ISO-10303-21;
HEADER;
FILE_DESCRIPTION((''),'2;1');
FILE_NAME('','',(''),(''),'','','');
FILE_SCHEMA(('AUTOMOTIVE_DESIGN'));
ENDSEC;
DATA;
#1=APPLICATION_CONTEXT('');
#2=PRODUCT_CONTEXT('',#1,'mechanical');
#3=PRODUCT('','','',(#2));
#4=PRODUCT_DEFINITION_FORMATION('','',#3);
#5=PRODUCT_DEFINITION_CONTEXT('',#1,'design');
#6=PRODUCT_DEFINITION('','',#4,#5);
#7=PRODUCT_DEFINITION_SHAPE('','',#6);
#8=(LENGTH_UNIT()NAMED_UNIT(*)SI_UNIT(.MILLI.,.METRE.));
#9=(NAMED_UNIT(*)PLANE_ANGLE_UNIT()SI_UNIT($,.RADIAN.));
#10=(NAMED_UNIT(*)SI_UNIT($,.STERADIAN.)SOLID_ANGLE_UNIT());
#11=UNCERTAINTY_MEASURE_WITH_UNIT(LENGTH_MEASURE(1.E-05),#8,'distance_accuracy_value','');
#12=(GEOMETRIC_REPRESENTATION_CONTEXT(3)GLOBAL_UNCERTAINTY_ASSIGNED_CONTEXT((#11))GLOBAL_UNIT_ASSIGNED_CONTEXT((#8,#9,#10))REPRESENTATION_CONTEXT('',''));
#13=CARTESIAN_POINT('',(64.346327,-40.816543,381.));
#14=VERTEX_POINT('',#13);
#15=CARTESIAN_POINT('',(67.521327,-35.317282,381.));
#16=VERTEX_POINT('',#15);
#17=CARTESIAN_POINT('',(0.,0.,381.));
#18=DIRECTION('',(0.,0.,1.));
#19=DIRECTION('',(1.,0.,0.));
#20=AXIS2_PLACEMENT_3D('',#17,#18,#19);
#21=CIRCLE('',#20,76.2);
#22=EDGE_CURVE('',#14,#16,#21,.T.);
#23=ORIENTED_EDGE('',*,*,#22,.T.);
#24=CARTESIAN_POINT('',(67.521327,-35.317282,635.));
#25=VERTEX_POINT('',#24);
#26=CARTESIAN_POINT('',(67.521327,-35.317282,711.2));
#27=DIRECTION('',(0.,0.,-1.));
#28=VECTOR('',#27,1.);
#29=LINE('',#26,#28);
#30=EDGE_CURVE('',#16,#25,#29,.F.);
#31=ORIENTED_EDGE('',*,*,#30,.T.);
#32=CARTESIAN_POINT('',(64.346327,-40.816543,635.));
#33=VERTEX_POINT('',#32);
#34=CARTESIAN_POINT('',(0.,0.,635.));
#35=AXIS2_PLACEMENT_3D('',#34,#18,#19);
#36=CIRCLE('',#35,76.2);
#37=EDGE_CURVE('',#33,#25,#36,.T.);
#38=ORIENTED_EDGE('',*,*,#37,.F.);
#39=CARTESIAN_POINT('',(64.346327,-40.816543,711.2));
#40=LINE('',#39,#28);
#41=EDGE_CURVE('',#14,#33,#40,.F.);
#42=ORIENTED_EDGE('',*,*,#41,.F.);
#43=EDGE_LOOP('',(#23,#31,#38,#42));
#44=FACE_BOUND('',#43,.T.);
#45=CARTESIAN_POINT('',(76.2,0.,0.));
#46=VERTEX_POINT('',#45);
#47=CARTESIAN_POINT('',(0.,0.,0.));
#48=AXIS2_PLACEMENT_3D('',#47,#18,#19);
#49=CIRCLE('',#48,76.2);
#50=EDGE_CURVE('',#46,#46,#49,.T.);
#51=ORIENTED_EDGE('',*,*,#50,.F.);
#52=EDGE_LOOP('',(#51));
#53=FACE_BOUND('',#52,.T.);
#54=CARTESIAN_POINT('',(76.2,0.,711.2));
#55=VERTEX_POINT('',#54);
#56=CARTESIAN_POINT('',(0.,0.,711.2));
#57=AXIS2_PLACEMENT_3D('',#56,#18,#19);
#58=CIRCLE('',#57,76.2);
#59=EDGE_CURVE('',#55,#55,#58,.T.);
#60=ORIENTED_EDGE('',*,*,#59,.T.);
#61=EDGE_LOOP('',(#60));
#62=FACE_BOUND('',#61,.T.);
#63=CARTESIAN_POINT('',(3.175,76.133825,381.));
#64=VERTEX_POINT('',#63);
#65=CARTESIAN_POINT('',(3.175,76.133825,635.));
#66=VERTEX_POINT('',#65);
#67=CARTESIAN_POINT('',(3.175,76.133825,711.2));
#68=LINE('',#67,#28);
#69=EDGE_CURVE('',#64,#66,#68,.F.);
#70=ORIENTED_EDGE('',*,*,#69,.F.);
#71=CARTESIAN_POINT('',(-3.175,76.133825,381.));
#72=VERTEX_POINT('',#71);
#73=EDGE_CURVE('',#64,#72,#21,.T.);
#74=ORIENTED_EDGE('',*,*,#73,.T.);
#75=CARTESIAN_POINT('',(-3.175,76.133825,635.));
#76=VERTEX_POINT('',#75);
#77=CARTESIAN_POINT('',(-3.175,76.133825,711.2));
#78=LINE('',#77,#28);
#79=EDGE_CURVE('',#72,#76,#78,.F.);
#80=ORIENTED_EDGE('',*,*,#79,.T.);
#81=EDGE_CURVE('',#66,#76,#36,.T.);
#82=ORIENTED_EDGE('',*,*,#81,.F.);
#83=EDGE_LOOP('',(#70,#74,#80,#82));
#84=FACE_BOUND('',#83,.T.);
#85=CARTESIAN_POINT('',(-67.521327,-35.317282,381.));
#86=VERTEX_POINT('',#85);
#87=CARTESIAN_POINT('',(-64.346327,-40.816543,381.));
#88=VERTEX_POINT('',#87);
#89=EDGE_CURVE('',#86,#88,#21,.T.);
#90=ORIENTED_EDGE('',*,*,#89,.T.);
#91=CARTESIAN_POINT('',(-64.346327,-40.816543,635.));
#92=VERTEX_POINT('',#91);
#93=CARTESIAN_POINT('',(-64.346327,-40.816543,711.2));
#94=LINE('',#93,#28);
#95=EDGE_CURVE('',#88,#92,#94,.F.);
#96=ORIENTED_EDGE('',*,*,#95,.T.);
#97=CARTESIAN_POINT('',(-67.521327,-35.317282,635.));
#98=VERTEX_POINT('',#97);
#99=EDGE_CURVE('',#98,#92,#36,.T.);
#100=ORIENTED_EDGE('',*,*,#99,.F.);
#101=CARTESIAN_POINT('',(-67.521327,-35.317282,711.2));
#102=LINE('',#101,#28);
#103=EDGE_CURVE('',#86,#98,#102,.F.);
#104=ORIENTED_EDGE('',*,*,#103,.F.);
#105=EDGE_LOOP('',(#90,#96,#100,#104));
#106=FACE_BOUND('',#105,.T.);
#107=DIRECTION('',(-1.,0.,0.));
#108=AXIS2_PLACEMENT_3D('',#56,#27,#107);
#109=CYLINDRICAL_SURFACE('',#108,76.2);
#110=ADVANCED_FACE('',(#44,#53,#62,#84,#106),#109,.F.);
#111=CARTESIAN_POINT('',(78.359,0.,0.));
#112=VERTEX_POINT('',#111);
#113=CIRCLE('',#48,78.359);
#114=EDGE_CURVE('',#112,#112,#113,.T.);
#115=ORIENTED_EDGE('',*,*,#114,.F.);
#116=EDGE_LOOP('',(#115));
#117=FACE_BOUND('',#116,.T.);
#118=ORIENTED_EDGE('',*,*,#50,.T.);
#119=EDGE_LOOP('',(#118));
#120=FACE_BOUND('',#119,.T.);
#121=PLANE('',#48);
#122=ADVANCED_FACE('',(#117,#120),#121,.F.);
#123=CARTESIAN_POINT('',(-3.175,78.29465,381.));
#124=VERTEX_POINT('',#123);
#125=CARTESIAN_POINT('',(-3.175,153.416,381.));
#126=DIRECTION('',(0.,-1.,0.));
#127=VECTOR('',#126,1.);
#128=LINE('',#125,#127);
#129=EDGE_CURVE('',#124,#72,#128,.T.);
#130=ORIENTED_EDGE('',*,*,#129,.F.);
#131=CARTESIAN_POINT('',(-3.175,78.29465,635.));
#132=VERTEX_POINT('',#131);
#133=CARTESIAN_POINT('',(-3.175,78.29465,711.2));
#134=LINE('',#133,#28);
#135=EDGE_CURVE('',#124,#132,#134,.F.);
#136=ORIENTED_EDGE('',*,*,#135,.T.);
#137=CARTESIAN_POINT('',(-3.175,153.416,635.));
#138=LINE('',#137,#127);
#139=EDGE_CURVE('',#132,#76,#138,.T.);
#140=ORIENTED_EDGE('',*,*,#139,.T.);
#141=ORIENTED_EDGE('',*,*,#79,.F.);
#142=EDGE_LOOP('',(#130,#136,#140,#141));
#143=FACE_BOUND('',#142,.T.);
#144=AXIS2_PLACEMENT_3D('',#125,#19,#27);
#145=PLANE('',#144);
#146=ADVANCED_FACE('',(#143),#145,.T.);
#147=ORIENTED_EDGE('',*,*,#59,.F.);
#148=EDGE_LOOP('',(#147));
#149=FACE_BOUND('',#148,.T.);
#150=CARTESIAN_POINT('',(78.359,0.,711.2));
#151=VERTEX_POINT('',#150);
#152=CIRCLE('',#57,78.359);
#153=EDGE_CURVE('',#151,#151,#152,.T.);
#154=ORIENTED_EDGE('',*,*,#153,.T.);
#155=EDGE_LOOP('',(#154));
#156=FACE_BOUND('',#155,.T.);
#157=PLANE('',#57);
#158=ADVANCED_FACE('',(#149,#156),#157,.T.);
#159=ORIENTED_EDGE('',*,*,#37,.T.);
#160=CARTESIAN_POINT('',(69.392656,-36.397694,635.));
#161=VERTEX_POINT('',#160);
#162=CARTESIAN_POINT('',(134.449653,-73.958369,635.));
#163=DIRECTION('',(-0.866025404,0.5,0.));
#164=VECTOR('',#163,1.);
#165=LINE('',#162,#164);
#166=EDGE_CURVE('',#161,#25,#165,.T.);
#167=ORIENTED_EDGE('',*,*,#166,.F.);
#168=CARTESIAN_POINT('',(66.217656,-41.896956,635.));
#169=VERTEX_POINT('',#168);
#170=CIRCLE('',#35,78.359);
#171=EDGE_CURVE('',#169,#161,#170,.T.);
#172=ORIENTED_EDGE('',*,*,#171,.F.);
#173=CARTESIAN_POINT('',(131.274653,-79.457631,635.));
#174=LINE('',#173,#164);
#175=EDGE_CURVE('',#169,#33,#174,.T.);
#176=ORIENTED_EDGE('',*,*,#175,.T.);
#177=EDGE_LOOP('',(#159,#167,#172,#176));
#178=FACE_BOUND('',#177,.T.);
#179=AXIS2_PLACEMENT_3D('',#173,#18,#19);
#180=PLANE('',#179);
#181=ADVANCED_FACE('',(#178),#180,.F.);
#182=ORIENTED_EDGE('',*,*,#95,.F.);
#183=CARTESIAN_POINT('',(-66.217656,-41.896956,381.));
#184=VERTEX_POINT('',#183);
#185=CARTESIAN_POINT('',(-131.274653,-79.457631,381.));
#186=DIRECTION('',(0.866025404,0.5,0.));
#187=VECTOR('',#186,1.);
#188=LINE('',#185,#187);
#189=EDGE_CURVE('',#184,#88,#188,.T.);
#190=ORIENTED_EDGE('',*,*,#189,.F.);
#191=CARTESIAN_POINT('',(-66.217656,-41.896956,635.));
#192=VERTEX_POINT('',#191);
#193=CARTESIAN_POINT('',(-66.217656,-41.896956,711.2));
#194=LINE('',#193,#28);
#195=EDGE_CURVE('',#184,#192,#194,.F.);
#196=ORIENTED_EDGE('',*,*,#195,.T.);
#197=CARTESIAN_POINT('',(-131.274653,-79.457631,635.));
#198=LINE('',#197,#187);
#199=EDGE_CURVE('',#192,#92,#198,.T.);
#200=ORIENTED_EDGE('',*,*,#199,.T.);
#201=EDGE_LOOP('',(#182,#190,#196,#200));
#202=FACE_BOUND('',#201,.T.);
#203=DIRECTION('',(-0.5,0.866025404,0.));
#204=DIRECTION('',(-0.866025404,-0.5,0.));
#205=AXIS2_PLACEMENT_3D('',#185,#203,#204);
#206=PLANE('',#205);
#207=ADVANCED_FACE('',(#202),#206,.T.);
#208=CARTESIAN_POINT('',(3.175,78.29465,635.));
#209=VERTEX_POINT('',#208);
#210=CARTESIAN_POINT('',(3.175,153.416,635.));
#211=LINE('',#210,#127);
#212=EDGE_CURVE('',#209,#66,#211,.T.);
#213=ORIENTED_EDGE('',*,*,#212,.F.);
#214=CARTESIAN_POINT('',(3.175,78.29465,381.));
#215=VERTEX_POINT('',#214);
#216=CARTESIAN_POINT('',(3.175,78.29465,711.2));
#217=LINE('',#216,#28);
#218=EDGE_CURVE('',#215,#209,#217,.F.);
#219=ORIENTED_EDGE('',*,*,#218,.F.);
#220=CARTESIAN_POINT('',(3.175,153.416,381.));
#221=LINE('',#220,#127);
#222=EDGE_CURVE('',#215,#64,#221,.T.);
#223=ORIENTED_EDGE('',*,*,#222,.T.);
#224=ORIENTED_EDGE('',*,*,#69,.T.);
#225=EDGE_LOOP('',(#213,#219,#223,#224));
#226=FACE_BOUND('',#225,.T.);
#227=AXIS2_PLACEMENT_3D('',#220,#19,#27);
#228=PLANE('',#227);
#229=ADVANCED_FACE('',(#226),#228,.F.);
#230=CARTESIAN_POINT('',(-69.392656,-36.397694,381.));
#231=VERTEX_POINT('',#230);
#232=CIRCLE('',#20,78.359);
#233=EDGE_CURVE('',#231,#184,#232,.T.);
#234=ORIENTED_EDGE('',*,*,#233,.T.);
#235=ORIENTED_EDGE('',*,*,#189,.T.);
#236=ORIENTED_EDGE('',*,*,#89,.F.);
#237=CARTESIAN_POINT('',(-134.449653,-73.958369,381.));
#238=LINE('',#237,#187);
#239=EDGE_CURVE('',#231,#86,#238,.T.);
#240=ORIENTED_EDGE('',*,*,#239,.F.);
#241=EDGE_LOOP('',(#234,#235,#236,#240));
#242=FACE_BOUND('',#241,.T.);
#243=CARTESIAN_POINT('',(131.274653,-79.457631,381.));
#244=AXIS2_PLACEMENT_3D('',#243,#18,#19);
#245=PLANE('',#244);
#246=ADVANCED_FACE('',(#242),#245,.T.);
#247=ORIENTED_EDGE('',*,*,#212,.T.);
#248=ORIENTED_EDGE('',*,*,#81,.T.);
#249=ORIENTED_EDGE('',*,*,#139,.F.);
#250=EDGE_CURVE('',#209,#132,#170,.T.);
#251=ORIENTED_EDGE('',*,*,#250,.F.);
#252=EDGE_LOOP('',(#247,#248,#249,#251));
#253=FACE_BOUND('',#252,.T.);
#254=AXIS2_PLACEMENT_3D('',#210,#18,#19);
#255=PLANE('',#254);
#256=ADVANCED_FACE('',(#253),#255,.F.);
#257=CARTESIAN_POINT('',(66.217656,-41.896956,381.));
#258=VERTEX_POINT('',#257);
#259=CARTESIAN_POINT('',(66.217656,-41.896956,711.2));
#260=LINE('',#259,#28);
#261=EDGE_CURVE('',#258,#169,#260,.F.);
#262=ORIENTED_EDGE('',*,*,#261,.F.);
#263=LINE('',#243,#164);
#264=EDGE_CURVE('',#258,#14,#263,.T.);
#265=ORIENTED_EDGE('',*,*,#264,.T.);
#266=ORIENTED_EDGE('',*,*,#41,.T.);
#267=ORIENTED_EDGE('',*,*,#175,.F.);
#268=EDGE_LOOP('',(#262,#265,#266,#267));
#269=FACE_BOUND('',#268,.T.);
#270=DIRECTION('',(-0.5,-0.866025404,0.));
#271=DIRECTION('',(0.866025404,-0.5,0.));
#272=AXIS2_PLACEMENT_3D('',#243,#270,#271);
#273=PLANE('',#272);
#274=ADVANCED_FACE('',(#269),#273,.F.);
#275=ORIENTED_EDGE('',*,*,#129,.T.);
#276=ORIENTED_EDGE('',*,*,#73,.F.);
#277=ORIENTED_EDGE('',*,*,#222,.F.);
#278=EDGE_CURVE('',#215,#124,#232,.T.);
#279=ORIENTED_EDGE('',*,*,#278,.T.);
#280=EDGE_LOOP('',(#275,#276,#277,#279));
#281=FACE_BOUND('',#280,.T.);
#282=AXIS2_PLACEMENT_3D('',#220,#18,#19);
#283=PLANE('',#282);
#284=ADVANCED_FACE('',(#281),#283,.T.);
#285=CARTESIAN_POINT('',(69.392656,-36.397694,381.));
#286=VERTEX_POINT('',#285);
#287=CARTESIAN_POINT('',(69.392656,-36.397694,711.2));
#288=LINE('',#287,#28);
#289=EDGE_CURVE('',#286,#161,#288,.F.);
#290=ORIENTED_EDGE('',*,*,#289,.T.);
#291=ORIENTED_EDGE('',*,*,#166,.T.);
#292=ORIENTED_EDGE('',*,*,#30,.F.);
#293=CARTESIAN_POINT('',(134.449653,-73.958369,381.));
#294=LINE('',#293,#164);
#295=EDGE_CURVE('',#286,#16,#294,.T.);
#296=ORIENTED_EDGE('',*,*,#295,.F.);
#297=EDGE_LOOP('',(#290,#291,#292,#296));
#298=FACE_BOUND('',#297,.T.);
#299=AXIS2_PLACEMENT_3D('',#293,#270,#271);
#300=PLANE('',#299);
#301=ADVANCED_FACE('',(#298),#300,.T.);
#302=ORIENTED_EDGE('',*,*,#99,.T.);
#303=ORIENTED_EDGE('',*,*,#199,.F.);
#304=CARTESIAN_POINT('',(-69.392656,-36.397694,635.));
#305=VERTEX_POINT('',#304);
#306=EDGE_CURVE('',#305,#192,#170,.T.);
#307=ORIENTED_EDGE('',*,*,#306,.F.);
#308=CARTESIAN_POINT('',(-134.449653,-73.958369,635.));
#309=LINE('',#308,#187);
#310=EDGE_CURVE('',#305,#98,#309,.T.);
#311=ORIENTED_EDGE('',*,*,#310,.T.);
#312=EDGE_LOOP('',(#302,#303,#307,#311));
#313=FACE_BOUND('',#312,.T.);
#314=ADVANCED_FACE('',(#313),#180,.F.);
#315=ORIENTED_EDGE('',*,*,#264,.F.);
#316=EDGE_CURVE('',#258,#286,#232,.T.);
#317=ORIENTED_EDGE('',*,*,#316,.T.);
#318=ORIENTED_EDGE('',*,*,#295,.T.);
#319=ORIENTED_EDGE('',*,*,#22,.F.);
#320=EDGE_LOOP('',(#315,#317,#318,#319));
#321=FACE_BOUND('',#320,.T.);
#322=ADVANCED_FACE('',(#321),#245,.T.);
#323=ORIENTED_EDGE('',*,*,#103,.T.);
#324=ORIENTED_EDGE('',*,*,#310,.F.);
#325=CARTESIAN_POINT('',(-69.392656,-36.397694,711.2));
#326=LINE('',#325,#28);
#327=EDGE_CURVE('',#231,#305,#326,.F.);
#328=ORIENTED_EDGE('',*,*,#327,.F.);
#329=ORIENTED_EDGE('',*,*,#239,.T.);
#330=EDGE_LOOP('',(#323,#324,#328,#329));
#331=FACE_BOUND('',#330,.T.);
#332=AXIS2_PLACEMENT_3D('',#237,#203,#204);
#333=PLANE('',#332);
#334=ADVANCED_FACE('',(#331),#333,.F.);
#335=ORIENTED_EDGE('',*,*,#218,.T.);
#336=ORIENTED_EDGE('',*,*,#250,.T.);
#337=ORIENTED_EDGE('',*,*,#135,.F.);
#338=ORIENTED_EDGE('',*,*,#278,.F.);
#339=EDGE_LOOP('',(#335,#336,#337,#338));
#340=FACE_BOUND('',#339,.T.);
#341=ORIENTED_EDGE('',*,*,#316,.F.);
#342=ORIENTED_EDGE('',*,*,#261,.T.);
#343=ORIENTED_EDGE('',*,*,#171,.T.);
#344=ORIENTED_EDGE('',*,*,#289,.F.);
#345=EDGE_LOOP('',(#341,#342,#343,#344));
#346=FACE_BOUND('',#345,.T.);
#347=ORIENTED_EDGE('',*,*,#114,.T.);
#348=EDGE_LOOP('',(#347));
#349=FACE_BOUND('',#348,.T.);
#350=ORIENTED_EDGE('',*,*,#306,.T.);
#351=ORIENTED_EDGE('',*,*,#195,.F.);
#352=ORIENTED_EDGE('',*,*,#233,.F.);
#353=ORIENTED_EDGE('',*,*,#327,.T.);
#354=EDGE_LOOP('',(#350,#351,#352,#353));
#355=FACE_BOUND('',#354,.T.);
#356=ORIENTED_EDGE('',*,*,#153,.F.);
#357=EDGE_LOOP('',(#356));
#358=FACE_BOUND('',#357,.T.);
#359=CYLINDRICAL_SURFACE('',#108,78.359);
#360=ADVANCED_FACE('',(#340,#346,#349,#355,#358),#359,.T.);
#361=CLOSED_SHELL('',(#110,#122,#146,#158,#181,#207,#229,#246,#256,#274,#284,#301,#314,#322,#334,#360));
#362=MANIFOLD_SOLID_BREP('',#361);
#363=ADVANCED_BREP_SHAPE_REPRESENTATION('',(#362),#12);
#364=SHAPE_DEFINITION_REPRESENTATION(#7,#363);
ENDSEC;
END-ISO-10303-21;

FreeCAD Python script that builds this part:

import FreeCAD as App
import Part
import Sketcher
Q = App.Units.Quantity

doc = App.newDocument("Part")
body = doc.addObject("PartDesign::Body", "Body")

sketch1 = doc.addObject("Sketcher::SketchObject", "Sketch")
body.addObject(sketch1)
sketch1.AttachmentSupport = (doc.XY_Plane, [""])
sketch1.MapMode = "FlatFace"
sketch1.addGeometry([
    Part.Circle(App.Vector(0, 0, 0), App.Vector(0, 0, 1), 78),
    Part.Circle(App.Vector(0, 0, 0), App.Vector(0, 0, 1), 76),
], False)
sketch1.addConstraint([
    Sketcher.Constraint("Coincident", 0, 3, -1, 1),
    Sketcher.Constraint("Coincident", 1, 3, -1, 1),
    Sketcher.Constraint("Diameter", 1, Q("6 in")),
    Sketcher.Constraint("Diameter", 0, Q("6.17 in")),
])
pad1 = doc.addObject("PartDesign::Pad", "Pad")
body.addObject(pad1)
pad1.Profile = sketch1
pad1.Length = Q("28 in")

sketch2 = doc.addObject("Sketcher::SketchObject", "Sketch001")
body.addObject(sketch2)
sketch2.AttachmentSupport = (doc.XZ_Plane, [""])
sketch2.MapMode = "FlatFace"
sketch2.addGeometry([
    Part.LineSegment(App.Vector(-3, 381, 0), App.Vector(-3, 635, 0)),
    Part.LineSegment(App.Vector(-3, 635, 0), App.Vector(3, 635, 0)),
    Part.LineSegment(App.Vector(3, 635, 0), App.Vector(3, 381, 0)),
    Part.LineSegment(App.Vector(3, 381, 0), App.Vector(-3, 381, 0)),
], False)
sketch2.addConstraint([
    Sketcher.Constraint("Coincident", 0, 2, 1, 1),
    Sketcher.Constraint("Coincident", 1, 2, 2, 1),
    Sketcher.Constraint("Coincident", 2, 2, 3, 1),
    Sketcher.Constraint("Coincident", 3, 2, 0, 1),
    Sketcher.Constraint("Vertical", 0),
    Sketcher.Constraint("Horizontal", 1),
    Sketcher.Constraint("Vertical", 2),
    Sketcher.Constraint("Horizontal", 3),
    Sketcher.Constraint("DistanceY", 0, 1, 0, 2, Q("10 in")),
    Sketcher.Constraint("DistanceY", -1, 1, 0, 2, Q("25 in")),
    Sketcher.Constraint("DistanceX", 1, 1, 1, 2, Q("0.25 in")),
    Sketcher.Constraint("DistanceX", 0, 2, -1, 1, Q("0.125 in")),
])
pocket1 = doc.addObject("PartDesign::Pocket", "Pocket")
body.addObject(pocket1)
pocket1.Profile = sketch2
pocket1.Length = Q("6.04 in")
doc.recompute()

polarpattern = doc.addObject("PartDesign::PolarPattern", "PolarPattern")
body.addObject(polarpattern)
polarpattern.Originals = [pocket1]
polarpattern.Axis = (doc.Z_Axis, [""])
polarpattern.Angle = 360
polarpattern.Occurrences = 3
body.Tip = polarpattern

doc.recompute()
